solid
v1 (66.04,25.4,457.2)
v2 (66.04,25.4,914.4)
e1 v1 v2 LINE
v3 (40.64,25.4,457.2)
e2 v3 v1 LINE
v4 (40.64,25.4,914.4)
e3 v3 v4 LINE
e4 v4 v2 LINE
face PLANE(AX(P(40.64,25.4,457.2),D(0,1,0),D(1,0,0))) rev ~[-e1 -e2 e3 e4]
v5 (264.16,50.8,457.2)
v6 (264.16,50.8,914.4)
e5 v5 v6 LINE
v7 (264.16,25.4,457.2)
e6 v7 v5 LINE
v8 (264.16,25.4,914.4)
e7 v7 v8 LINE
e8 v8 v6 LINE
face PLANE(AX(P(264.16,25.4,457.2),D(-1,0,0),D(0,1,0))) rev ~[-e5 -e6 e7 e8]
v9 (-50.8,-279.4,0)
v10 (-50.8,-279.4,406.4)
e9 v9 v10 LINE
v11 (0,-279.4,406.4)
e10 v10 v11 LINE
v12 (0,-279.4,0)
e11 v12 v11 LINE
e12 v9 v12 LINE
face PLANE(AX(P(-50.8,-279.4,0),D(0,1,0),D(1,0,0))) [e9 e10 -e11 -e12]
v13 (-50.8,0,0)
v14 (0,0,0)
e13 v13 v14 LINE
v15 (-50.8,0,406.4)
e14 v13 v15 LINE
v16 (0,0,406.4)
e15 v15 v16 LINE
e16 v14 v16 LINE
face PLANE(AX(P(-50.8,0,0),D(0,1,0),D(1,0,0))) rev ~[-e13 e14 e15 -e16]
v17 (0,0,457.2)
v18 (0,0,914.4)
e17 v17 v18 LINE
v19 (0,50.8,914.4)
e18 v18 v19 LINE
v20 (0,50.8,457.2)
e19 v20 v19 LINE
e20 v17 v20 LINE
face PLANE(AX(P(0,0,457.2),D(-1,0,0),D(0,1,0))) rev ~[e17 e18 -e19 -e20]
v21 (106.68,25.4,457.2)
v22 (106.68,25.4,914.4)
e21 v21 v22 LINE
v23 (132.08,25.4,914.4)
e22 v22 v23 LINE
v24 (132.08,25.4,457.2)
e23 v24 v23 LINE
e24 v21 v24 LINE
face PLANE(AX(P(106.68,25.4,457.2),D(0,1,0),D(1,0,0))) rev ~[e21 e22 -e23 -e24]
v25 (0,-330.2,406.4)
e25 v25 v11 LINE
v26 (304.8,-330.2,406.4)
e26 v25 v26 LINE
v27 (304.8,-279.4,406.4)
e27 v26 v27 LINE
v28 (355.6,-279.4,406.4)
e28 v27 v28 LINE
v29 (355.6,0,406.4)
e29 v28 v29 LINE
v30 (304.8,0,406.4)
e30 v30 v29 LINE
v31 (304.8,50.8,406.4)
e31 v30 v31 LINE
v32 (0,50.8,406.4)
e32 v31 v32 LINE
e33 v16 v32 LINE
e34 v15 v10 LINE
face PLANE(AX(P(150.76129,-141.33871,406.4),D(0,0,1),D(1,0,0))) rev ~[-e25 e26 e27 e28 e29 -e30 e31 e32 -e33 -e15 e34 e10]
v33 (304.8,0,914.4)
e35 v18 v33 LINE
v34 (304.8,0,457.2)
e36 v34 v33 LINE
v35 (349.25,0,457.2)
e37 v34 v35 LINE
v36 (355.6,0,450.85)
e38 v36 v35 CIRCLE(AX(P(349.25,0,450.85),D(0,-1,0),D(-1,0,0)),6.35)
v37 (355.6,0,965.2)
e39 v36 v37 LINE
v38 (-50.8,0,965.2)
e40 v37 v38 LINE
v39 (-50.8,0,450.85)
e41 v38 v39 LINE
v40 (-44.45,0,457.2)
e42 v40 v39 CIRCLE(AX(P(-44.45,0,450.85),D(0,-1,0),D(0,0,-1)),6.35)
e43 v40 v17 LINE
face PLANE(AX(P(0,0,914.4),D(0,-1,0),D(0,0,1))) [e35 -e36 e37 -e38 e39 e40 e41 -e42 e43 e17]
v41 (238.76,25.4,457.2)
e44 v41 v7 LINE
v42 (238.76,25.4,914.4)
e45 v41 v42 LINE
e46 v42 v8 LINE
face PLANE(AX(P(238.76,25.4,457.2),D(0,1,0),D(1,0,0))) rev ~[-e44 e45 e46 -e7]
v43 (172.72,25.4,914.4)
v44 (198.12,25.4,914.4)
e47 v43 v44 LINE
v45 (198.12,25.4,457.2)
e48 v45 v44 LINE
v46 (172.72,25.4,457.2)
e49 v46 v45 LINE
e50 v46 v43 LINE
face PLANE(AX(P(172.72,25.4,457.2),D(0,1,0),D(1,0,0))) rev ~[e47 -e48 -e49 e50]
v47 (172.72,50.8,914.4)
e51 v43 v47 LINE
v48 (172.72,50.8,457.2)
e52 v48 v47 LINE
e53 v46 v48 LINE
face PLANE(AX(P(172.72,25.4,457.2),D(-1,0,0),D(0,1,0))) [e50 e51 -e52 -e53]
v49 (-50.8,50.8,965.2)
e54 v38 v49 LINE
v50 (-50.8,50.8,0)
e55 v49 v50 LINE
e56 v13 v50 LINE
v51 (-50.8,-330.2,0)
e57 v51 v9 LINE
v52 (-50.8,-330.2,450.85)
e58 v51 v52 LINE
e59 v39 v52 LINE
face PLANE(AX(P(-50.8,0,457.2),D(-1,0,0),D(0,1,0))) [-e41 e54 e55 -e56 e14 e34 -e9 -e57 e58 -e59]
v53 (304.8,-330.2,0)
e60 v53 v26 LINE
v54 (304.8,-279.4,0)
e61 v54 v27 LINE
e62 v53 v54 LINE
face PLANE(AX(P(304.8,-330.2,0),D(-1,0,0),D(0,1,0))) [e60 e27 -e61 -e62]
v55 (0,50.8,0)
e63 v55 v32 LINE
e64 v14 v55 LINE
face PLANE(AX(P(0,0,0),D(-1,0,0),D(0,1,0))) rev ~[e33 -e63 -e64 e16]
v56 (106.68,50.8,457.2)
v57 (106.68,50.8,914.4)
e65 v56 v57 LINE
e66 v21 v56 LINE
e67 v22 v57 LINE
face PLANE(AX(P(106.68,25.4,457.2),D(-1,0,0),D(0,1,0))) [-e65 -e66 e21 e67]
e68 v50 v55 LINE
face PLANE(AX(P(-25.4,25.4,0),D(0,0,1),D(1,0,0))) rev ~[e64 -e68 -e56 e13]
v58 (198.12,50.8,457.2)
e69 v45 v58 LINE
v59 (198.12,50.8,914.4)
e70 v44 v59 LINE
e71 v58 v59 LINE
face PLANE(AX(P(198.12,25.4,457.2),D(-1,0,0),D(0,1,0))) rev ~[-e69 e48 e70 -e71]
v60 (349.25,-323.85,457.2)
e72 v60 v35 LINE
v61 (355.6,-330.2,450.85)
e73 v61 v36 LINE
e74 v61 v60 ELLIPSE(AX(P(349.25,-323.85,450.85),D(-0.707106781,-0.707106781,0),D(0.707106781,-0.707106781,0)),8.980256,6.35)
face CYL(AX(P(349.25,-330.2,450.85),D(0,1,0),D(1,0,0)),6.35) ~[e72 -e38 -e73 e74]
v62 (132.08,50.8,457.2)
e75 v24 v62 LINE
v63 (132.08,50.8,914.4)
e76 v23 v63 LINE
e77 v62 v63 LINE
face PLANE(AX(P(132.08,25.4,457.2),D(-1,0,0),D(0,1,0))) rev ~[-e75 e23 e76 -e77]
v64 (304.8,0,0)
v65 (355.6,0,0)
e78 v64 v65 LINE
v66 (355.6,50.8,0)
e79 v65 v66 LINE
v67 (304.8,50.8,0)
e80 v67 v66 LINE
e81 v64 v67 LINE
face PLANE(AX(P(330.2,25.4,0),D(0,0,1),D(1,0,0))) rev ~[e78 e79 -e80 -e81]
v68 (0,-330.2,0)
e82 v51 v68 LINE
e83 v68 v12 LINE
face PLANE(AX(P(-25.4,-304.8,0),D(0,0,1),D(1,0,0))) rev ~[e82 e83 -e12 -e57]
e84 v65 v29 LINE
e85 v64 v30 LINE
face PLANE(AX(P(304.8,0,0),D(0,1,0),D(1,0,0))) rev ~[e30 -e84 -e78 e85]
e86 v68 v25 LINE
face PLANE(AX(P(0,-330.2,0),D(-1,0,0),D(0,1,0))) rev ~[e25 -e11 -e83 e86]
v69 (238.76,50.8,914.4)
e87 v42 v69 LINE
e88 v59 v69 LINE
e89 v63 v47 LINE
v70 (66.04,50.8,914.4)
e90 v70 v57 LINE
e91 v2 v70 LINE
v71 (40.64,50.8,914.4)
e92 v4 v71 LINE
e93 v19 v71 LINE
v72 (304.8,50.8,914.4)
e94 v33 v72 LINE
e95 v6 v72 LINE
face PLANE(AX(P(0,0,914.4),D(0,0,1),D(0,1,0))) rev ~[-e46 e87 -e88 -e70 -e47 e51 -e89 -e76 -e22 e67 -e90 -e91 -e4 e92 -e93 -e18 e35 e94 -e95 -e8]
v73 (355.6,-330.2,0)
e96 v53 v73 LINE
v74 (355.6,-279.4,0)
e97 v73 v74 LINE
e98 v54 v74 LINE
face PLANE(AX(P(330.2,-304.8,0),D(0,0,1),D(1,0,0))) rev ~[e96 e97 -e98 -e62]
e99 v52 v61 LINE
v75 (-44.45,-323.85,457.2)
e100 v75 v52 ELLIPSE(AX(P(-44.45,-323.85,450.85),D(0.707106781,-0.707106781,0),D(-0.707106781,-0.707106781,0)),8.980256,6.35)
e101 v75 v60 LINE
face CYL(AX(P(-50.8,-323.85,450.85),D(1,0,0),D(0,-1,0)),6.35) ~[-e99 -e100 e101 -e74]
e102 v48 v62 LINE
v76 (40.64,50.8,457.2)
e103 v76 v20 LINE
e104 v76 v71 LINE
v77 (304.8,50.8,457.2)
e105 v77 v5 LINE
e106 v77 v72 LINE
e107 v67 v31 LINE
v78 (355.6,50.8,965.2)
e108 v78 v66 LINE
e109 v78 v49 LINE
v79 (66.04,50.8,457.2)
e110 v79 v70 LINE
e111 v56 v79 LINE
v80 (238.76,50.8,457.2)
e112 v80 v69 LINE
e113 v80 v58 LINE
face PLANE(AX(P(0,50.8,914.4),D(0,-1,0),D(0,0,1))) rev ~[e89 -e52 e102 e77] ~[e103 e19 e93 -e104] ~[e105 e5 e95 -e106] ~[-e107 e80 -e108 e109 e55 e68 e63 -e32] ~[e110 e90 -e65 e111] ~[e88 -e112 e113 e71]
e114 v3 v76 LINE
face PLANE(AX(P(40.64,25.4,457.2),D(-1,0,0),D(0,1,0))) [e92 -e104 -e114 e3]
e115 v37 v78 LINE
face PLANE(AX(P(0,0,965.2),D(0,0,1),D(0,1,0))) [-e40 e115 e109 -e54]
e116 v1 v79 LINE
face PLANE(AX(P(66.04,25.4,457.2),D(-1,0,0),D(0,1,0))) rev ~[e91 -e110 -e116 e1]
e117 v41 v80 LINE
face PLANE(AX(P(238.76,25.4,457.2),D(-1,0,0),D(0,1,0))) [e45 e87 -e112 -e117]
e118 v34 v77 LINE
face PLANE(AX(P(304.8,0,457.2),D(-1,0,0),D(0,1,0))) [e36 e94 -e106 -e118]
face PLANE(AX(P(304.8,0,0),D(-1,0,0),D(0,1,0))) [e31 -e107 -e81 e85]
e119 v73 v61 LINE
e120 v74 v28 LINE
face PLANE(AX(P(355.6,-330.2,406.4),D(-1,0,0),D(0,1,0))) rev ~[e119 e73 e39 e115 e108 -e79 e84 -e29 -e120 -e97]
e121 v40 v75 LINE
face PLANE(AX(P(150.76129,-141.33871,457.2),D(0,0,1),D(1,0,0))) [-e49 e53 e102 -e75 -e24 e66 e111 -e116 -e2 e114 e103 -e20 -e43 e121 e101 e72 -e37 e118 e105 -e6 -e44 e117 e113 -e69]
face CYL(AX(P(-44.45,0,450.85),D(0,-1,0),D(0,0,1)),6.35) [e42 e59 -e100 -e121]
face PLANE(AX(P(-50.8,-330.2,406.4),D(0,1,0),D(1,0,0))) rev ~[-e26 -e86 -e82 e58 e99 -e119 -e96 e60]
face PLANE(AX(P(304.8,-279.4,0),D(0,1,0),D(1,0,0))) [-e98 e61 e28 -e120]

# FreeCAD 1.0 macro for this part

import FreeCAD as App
import Part
import Sketcher

V = App.Vector
Q = App.Units.Quantity


def edges_at(feature, points):
    """Names of the edges that pass closest to the given points."""
    edges = feature.Shape.Edges
    near = lambda p: min(range(len(edges)), key=lambda i: edges[i].distToShape(Part.Vertex(*p))[0])
    return sorted({f"Edge{near(p) + 1}" for p in points})


def add_polygon(sketch, points):
    """Adds a closed chain of lines whose ends are joined by coincident constraints."""
    first, n = sketch.GeometryCount, len(points)
    for a, b in zip(points, points[1:] + points[:1]):
        sketch.addGeometry(Part.LineSegment(App.Vector(*a, 0), App.Vector(*b, 0)), False)
    for i in range(n):
        sketch.addConstraint(Sketcher.Constraint("Coincident", first + i, 2, first + (i + 1) % n, 1))

doc = App.newDocument("Part")
body = doc.addObject("PartDesign::Body", "Body")
body.AllowCompound = True

sketch1 = body.newObject("Sketcher::SketchObject", "Sketch")
sketch1.AttachmentSupport = (doc.getObject("XY_Plane"), [""])
sketch1.MapMode = "FlatFace"
add_polygon(sketch1, [(-51, 51), (-51, 0), (0, 0), (0, 51)])
add_polygon(sketch1, [(305, 51), (305, 0), (356, 0), (356, 51)])
add_polygon(sketch1, [(305, -279), (305, -330), (356, -330), (356, -279)])
add_polygon(sketch1, [(-51, -279), (-51, -330), (0, -330), (0, -279)])
sketch1.addConstraint([
    Sketcher.Constraint("Vertical", 0),
    Sketcher.Constraint("Horizontal", 1),
    Sketcher.Constraint("Vertical", 2),
    Sketcher.Constraint("Horizontal", 3),
    Sketcher.Constraint("Vertical", 4),
    Sketcher.Constraint("Horizontal", 5),
    Sketcher.Constraint("Vertical", 6),
    Sketcher.Constraint("Horizontal", 7),
    Sketcher.Constraint("Vertical", 8),
    Sketcher.Constraint("Horizontal", 9),
    Sketcher.Constraint("Vertical", 10),
    Sketcher.Constraint("Horizontal", 11),
    Sketcher.Constraint("Vertical", 12),
    Sketcher.Constraint("Horizontal", 13),
    Sketcher.Constraint("Vertical", 14),
    Sketcher.Constraint("Horizontal", 15),
    Sketcher.Constraint("Coincident", 1, 2, -1, 1),
    Sketcher.Constraint("PointOnObject", 4, 2, -1),
    Sketcher.Constraint("PointOnObject", 13, 2, -2),
    Sketcher.Constraint("Horizontal", 3, 2, 6, 2),
    Sketcher.Constraint("Horizontal", 9, 2, 12, 2),
    Sketcher.Constraint("Horizontal", 11, 2, 14, 2),
    Sketcher.Constraint("Vertical", 7, 2, 8, 2),
    Sketcher.Constraint("Vertical", 6, 2, 9, 2),
    Sketcher.Constraint("Vertical", 3, 2, 12, 2),
    Sketcher.Constraint("Equal", 3, 5),
    Sketcher.Constraint("Equal", 15, 0),
    Sketcher.Constraint("Equal", 6, 8),
    Sketcher.Constraint("DistanceX", 1, 1, 1, 2, Q("2 in")),
    Sketcher.Constraint("DistanceX", -1, 1, 4, 2, Q("12 in")),
    Sketcher.Constraint("DistanceY", 8, 2, -1, 1, Q("13 in")),
])
pad1 = body.newObject("PartDesign::Pad", "Pad")
pad1.Profile = sketch1
pad1.Length = Q("16 in")

sketch2 = body.newObject("Sketcher::SketchObject", "Sketch001")
sketch2.AttachmentSupport = (doc.getObject("XY_Plane"), [""])
sketch2.MapMode = "FlatFace"
sketch2.AttachmentOffset = App.Placement(V(0, 0, 16 * 25.4), App.Rotation())
add_polygon(sketch2, [(-51, 51), (-51, -330), (356, -330), (356, 51)])
sketch2.addConstraint([
    Sketcher.Constraint("Vertical", 0),
    Sketcher.Constraint("Horizontal", 1),
    Sketcher.Constraint("Vertical", 2),
    Sketcher.Constraint("Horizontal", 3),
    Sketcher.Constraint("DistanceX", 1, 1, 1, 2, Q("16 in")),
    Sketcher.Constraint("DistanceY", 0, 2, 0, 1, Q("15 in")),
    Sketcher.Constraint("DistanceX", 0, 2, -1, 1, Q("2 in")),
    Sketcher.Constraint("DistanceY", 0, 2, -1, 1, Q("13 in")),
])
pad2 = body.newObject("PartDesign::Pad", "Pad001")
pad2.Profile = sketch2
pad2.Length = Q("2 in")

sketch3 = body.newObject("Sketcher::SketchObject", "Sketch002")
sketch3.AttachmentSupport = (doc.getObject("XY_Plane"), [""])
sketch3.MapMode = "FlatFace"
sketch3.AttachmentOffset = App.Placement(V(0, 0, 18 * 25.4), App.Rotation())
add_polygon(sketch3, [(-51, 51), (-51, 0), (0, 0), (0, 51)])
add_polygon(sketch3, [(41, 51), (41, 25), (66, 25), (66, 51)])
add_polygon(sketch3, [(107, 51), (107, 25), (132, 25), (132, 51)])
add_polygon(sketch3, [(173, 51), (173, 25), (198, 25), (198, 51)])
add_polygon(sketch3, [(239, 51), (239, 25), (264, 25), (264, 51)])
add_polygon(sketch3, [(305, 51), (305, 0), (356, 0), (356, 51)])
sketch3.addConstraint([
    Sketcher.Constraint("Vertical", 0),
    Sketcher.Constraint("Horizontal", 1),
    Sketcher.Constraint("Vertical", 2),
    Sketcher.Constraint("Horizontal", 3),
    Sketcher.Constraint("Vertical", 4),
    Sketcher.Constraint("Horizontal", 5),
    Sketcher.Constraint("Vertical", 6),
    Sketcher.Constraint("Horizontal", 7),
    Sketcher.Constraint("Vertical", 8),
    Sketcher.Constraint("Horizontal", 9),
    Sketcher.Constraint("Vertical", 10),
    Sketcher.Constraint("Horizontal", 11),
    Sketcher.Constraint("Vertical", 12),
    Sketcher.Constraint("Horizontal", 13),
    Sketcher.Constraint("Vertical", 14),
    Sketcher.Constraint("Horizontal", 15),
    Sketcher.Constraint("Vertical", 16),
    Sketcher.Constraint("Horizontal", 17),
    Sketcher.Constraint("Vertical", 18),
    Sketcher.Constraint("Horizontal", 19),
    Sketcher.Constraint("Vertical", 20),
    Sketcher.Constraint("Horizontal", 21),
    Sketcher.Constraint("Vertical", 22),
    Sketcher.Constraint("Horizontal", 23),
    Sketcher.Constraint("Coincident", 1, 2, -1, 1),
    Sketcher.Constraint("PointOnObject", 20, 2, -1),
    Sketcher.Constraint("Horizontal", 3, 2, 6, 2),
    Sketcher.Constraint("Horizontal", 5, 2, 8, 2),
    Sketcher.Constraint("Horizontal", 7, 2, 10, 2),
    Sketcher.Constraint("Horizontal", 9, 2, 12, 2),
    Sketcher.Constraint("Horizontal", 11, 2, 14, 2),
    Sketcher.Constraint("Horizontal", 13, 2, 16, 2),
    Sketcher.Constraint("Horizontal", 15, 2, 18, 2),
    Sketcher.Constraint("Horizontal", 19, 2, 22, 2),
    Sketcher.Constraint("Equal", 7, 9),
    Sketcher.Constraint("Equal", 11, 13),
    Sketcher.Constraint("Equal", 15, 17),
    Sketcher.Constraint("Equal", 3, 21),
    Sketcher.Constraint("Equal", 23, 0),
    Sketcher.Constraint("Equal", 19, 4),
    Sketcher.Constraint("DistanceX", 1, 1, 1, 2, Q("2 in")),
    Sketcher.Constraint("DistanceX", 5, 1, 5, 2, Q("1 in")),
    Sketcher.Constraint("DistanceX", -1, 1, 20, 2, Q("12 in")),
    Sketcher.Constraint("DistanceX", -1, 1, 4, 2, Q("1.6 in")),
    Sketcher.Constraint("DistanceX", -1, 1, 8, 2, Q("4.2 in")),
    Sketcher.Constraint("DistanceX", -1, 1, 12, 2, Q("6.8 in")),
    Sketcher.Constraint("DistanceX", -1, 1, 16, 2, Q("9.4 in")),
])
pad3 = body.newObject("PartDesign::Pad", "Pad002")
pad3.Profile = sketch3
pad3.Length = Q("20 in")

sketch4 = body.newObject("Sketcher::SketchObject", "Sketch003")
sketch4.AttachmentSupport = (doc.getObject("YZ_Plane"), [""])
sketch4.MapMode = "FlatFace"
add_polygon(sketch4, [(0, 965), (0, 914), (51, 914), (51, 965)])
sketch4.addConstraint([
    Sketcher.Constraint("Vertical", 0),
    Sketcher.Constraint("Horizontal", 1),
    Sketcher.Constraint("Vertical", 2),
    Sketcher.Constraint("Horizontal", 3),
    Sketcher.Constraint("PointOnObject", 0, 2, -2),
    Sketcher.Constraint("Equal", 3, 0),
    Sketcher.Constraint("DistanceX", 1, 1, 1, 2, Q("2 in")),
    Sketcher.Constraint("DistanceY", -1, 1, 0, 2, Q("36 in")),
])
pad4 = body.newObject("PartDesign::Pad", "Pad003")
pad4.Profile = sketch4
pad4.Length = Q("14 in")
doc.recompute()

fillet = body.newObject("PartDesign::Fillet", "Fillet")
fillet.Base = (pad4, edges_at(pad4, [(-50.8, -165.1, 457.2), (152.4, -330.2, 457.2), (355.6, -165.1, 457.2)]))
fillet.Radius = Q("0.25 in")

doc.recompute()
